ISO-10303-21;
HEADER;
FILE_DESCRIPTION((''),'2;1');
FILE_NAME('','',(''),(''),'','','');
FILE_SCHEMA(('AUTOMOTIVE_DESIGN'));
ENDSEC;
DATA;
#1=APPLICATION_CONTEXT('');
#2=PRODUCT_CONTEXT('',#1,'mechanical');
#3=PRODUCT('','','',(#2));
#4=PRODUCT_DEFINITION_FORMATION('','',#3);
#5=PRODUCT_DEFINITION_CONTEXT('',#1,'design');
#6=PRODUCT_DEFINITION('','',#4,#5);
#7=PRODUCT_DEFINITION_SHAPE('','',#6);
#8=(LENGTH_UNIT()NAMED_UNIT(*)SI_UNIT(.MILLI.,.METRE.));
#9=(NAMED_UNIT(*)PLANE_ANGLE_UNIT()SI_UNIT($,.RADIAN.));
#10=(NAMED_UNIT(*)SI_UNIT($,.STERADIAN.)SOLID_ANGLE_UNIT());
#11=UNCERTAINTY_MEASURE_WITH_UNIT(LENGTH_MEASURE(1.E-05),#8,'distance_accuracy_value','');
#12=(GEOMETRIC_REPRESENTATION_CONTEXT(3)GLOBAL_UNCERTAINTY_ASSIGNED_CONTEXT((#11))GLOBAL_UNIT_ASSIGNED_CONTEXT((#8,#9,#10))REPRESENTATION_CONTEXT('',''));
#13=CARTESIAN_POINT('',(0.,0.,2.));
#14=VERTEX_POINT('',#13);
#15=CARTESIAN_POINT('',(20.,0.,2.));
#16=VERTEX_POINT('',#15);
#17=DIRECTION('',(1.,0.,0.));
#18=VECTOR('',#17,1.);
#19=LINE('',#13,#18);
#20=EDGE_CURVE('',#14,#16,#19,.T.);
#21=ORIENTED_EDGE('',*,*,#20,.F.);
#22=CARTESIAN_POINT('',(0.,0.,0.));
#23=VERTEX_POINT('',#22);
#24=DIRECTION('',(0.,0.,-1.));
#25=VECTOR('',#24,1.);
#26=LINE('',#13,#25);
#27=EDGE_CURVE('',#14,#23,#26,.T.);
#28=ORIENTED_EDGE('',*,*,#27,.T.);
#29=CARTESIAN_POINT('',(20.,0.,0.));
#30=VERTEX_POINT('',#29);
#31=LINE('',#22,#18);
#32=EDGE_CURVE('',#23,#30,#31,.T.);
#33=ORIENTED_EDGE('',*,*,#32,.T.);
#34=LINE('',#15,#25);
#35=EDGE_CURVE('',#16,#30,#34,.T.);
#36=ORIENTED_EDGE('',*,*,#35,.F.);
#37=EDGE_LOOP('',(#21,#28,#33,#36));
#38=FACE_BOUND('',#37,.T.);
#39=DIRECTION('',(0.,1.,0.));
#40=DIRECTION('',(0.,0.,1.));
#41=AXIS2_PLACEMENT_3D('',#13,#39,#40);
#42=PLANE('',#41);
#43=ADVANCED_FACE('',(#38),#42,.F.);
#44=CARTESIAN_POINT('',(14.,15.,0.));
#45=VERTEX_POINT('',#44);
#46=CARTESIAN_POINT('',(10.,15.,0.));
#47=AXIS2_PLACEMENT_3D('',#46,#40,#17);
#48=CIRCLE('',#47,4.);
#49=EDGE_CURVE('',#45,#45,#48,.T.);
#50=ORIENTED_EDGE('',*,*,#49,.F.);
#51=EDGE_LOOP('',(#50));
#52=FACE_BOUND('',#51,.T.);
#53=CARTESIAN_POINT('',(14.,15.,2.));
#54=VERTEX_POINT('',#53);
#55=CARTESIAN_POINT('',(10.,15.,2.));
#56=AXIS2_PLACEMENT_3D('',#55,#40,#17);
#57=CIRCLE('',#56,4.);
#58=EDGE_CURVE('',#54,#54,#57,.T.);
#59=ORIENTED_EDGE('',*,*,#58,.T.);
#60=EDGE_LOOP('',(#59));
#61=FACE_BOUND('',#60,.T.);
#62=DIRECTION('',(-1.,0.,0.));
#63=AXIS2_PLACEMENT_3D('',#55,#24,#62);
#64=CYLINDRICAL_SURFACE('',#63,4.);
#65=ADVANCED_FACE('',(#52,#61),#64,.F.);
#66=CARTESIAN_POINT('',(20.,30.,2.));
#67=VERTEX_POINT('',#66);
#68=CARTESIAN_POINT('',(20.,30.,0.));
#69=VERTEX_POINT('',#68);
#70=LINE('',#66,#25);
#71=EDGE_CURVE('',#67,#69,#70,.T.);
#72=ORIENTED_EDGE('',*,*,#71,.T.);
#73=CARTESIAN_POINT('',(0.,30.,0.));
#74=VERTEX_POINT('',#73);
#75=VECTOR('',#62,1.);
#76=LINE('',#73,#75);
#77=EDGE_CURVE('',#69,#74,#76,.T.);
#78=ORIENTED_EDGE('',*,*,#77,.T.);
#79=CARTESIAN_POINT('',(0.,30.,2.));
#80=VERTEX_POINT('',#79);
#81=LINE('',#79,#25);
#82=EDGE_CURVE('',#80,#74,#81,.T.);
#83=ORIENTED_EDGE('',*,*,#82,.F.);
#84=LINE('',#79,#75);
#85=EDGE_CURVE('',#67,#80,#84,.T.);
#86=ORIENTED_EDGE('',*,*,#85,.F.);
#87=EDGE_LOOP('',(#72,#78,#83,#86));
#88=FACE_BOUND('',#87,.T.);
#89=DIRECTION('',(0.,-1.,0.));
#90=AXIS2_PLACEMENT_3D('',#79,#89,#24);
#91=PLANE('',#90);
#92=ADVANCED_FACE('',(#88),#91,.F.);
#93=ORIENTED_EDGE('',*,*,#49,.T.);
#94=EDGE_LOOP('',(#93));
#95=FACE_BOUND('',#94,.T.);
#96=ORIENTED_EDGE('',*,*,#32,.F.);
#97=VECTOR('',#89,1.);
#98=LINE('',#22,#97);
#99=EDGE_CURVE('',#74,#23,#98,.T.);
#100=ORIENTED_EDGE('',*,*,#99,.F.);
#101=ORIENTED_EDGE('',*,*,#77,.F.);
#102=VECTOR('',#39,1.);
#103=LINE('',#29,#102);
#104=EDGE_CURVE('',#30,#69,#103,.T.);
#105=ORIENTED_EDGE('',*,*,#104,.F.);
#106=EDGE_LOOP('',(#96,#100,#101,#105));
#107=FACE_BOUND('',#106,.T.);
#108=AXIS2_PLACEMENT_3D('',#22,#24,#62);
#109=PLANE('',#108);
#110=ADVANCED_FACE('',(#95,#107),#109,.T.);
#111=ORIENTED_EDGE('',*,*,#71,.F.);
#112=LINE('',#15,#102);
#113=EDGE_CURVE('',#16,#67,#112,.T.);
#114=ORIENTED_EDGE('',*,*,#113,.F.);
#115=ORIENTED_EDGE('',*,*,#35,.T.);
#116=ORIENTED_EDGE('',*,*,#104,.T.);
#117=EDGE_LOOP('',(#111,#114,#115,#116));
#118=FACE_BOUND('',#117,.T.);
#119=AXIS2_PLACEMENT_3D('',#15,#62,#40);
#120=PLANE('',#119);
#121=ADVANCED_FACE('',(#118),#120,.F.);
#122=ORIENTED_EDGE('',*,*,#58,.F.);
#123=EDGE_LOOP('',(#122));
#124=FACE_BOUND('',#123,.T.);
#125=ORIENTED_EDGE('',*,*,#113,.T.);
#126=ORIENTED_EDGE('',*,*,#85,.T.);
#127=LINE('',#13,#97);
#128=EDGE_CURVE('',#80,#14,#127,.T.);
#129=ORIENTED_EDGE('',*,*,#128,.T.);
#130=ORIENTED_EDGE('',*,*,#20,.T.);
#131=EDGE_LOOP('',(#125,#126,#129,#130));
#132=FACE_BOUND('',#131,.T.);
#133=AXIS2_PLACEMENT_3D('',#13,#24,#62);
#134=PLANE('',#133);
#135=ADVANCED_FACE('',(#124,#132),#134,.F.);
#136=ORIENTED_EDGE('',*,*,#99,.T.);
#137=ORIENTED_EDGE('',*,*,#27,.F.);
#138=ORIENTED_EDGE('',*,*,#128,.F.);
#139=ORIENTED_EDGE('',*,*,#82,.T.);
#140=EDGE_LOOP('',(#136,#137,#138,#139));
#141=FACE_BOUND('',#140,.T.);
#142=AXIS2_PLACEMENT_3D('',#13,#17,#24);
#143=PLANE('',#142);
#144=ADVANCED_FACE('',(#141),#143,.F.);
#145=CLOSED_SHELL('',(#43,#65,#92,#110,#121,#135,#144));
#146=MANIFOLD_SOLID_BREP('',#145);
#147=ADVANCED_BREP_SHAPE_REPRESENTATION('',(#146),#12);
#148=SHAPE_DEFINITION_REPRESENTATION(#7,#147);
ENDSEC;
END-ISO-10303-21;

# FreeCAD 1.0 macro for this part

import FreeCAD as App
import Part
import Sketcher
from FreeCAD import Vector


def add_polygon(sketch, points):
    """Adds a closed chain of lines whose ends are joined by coincident constraints."""
    first, n = sketch.GeometryCount, len(points)
    for a, b in zip(points, points[1:] + points[:1]):
        sketch.addGeometry(Part.LineSegment(App.Vector(*a, 0), App.Vector(*b, 0)), False)
    for i in range(n):
        sketch.addConstraint(Sketcher.Constraint("Coincident", first + i, 2, first + (i + 1) % n, 1))

doc = App.newDocument("Part")
body = doc.addObject("PartDesign::Body", "Body")

sketch1 = body.newObject("Sketcher::SketchObject", "Sketch")
sketch1.AttachmentSupport = (doc.getObject("XY_Plane"), [""])
sketch1.MapMode = "FlatFace"
add_polygon(sketch1, [(0, 30), (0, 0), (20, 0), (20, 30)])
sketch1.addGeometry(Part.Circle(Vector(10, 15, 0), Vector(0, 0, 1), 4), False)
sketch1.addConstraint(Sketcher.Constraint("Vertical", 0))
sketch1.addConstraint(Sketcher.Constraint("Horizontal", 1))
sketch1.addConstraint(Sketcher.Constraint("Vertical", 2))
sketch1.addConstraint(Sketcher.Constraint("Horizontal", 3))
sketch1.addConstraint(Sketcher.Constraint("Coincident", 0, 2, -1, 1))
sketch1.addConstraint(Sketcher.Constraint("Diameter", 4, 8.0))
sketch1.addConstraint(Sketcher.Constraint("DistanceX", 1, 1, 1, 2, 20.0))
sketch1.addConstraint(Sketcher.Constraint("DistanceY", 0, 2, 0, 1, 30.0))
sketch1.addConstraint(Sketcher.Constraint("DistanceX", -1, 1, 4, 3, 10.0))
sketch1.addConstraint(Sketcher.Constraint("DistanceY", -1, 1, 4, 3, 15.0))
pad1 = body.newObject("PartDesign::Pad", "Pad")
pad1.Profile = sketch1
pad1.Length = 2

doc.recompute()
